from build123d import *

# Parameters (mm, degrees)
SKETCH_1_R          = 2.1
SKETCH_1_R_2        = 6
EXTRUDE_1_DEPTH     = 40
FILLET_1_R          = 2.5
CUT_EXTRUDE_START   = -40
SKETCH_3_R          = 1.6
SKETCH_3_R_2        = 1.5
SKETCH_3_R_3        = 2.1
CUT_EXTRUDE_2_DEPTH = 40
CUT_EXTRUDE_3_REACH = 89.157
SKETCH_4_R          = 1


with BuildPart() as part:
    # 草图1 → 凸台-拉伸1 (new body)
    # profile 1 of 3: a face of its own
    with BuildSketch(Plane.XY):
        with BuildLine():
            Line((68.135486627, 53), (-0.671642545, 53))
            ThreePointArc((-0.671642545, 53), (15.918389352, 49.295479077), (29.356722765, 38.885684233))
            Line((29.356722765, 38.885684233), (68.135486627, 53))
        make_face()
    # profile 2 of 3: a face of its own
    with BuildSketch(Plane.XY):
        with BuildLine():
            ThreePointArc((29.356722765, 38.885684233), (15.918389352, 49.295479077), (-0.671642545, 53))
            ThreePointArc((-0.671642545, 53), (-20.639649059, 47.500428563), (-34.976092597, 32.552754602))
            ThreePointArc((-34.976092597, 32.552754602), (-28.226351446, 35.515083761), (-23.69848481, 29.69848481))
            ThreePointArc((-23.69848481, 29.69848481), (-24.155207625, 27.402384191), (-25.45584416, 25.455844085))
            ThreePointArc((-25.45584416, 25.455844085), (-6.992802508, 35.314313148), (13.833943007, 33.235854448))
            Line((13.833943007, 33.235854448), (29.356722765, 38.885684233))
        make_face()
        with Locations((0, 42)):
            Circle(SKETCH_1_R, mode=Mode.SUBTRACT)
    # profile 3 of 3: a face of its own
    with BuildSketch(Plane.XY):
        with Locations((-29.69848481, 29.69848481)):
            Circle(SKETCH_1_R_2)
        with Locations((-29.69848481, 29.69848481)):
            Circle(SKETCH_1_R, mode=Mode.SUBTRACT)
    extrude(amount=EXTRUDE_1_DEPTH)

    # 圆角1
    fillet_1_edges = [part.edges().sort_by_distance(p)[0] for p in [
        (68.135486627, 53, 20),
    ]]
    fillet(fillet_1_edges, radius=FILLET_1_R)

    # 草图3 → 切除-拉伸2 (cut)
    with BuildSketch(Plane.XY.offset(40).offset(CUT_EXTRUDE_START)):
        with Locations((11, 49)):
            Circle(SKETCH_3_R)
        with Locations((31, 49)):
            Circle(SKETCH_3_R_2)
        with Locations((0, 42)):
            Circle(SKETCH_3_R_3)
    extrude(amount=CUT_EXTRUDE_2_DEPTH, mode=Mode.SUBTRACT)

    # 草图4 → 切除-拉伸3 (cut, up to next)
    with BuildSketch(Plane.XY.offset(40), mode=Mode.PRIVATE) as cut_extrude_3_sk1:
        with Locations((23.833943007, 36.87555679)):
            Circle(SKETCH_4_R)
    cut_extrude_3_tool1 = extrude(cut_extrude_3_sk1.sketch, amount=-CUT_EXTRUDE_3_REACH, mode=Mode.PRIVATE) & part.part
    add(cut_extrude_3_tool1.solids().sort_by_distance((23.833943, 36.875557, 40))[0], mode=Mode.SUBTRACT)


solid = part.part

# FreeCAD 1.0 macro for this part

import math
import FreeCAD as App
import Part
import Sketcher

V = App.Vector
Q = App.Units.Quantity


def edges_at(feature, points):
    """Names of the edges that pass closest to the given points."""
    edges = feature.Shape.Edges
    near = lambda p: min(range(len(edges)), key=lambda i: edges[i].distToShape(Part.Vertex(*p))[0])
    return sorted({f"Edge{near(p) + 1}" for p in points})

doc = App.newDocument("Part")
body = doc.addObject("PartDesign::Body", "Body")

# Sketch on XY plane
sketch1 = body.newObject("Sketcher::SketchObject", "Sketch")
sketch1.AttachmentSupport = (doc.getObject("XY_Plane"), [""])
sketch1.MapMode = "FlatFace"
sketch1.addGeometry([
    Part.LineSegment(V(68.135487, 53, 0), V(-0.671643, 53, 0)),  # 0
    Part.ArcOfCircle(Part.Circle(V(-0.671642, 14, 0), V(0, 0, 1), 39), math.radians(90), math.radians(151.594304)),  # 1
    Part.ArcOfCircle(Part.Circle(V(-29.698485, 29.698485, 0), V(0, 0, 1), 6), math.radians(151.594306), math.radians(314.999999)),  # 2
    Part.ArcOfCircle(Part.Circle(V(0, 0, 0), V(0, 0, 1), 36), math.radians(67.401187), math.radians(135)),  # 3
    Part.LineSegment(V(13.833943, 33.235854, 0), V(29.356723, 38.885684, 0)),  # 4
    Part.LineSegment(V(29.356723, 38.885684, 0), V(68.135487, 53, 0)),  # 5
    Part.Circle(V(0, 42, 0), V(0, 0, 1), 2.1),  # 6
    Part.Circle(V(-29.698485, 29.698485, 0), V(0, 0, 1), 2.1),  # 7
], False)
sketch1.addConstraint([
    Sketcher.Constraint("Tangent", 0, 2, 1, 1),
    Sketcher.Constraint("Tangent", 1, 2, 2, 1),
    Sketcher.Constraint("Tangent", 2, 2, 3, 2),
    Sketcher.Constraint("Coincident", 3, 1, 4, 1),
    Sketcher.Constraint("Coincident", 4, 2, 5, 1),
    Sketcher.Constraint("Coincident", 5, 2, 0, 1),
    Sketcher.Constraint("Horizontal", 0),
    Sketcher.Constraint("Coincident", 3, 3, -1, 1),
    Sketcher.Constraint("Coincident", 7, 3, 2, 3),
    Sketcher.Constraint("Equal", 6, 7),
    Sketcher.Constraint("PointOnObject", 6, 3, -2),
    Sketcher.Constraint("Parallel", 4, 5),
    Sketcher.Constraint("Radius", 1, Q("39 mm")),
    Sketcher.Constraint("Radius", 2, Q("6 mm")),
    Sketcher.Constraint("Radius", 3, Q("36 mm")),
    Sketcher.Constraint("Diameter", 6, Q("4.2 mm")),
    Sketcher.Constraint("Angle", 4, Q("20 deg")),
    Sketcher.Constraint("DistanceY", -1, 1, 1, 3, Q("14 mm")),
    Sketcher.Constraint("DistanceY", -1, 1, 6, 3, Q("42 mm")),
    Sketcher.Constraint("Distance", 5, Q("41.267499 mm")),
    Sketcher.Constraint("DistanceX", 0, 2, 0, 1, Q("68.807129 mm")),
    Sketcher.Constraint("DistanceX", 2, 2, 1, 3, Q("24.784202 mm")),
])
pad1 = body.newObject("PartDesign::Pad", "Pad")
pad1.Profile = sketch1
pad1.Length = 40
doc.recompute()

fillet = body.newObject("PartDesign::Fillet", "Fillet")
fillet.Base = (pad1, edges_at(pad1, [(68.135, 53, 20)]))
fillet.Radius = 2.5

# Sketch on XY plane
sketch2 = body.newObject("Sketcher::SketchObject", "Sketch001")
sketch2.AttachmentSupport = (doc.getObject("XY_Plane"), [""])
sketch2.MapMode = "FlatFace"
sketch2.addGeometry([
    Part.Circle(V(11, 49, 0), V(0, 0, 1), 1.6),
    Part.Circle(V(31, 49, 0), V(0, 0, 1), 1.5),
    Part.Circle(V(0, 42, 0), V(0, 0, 1), 2.1),
], False)
sketch2.addConstraint([
    Sketcher.Constraint("PointOnObject", 2, 3, -2),
    Sketcher.Constraint("Horizontal", 0, 3, 1, 3),
    Sketcher.Constraint("Diameter", 1, Q("3 mm")),
    Sketcher.Constraint("Diameter", 0, Q("3.2 mm")),
    Sketcher.Constraint("Diameter", 2, Q("4.2 mm")),
    Sketcher.Constraint("DistanceX", -1, 1, 0, 3, Q("11 mm")),
    Sketcher.Constraint("DistanceY", -1, 1, 0, 3, Q("49 mm")),
    Sketcher.Constraint("DistanceX", -1, 1, 1, 3, Q("31 mm")),
    Sketcher.Constraint("DistanceY", -1, 1, 2, 3, Q("42 mm")),
])
pocket1 = body.newObject("PartDesign::Pocket", "Pocket")
pocket1.Profile = sketch2
pocket1.Length = 40
pocket1.Reversed = True

# Sketch on XY plane
sketch3 = body.newObject("Sketcher::SketchObject", "Sketch002")
sketch3.AttachmentSupport = (doc.getObject("XY_Plane"), [""])
sketch3.MapMode = "FlatFace"
sketch3.AttachmentOffset = App.Placement(V(0, 0, 40), App.Rotation())
sketch3.addGeometry(Part.Circle(V(23.833943, 36.875557, 0), V(0, 0, 1), 1), False)
sketch3.addConstraint([
    Sketcher.Constraint("Diameter", 0, Q("2 mm")),
    Sketcher.Constraint("DistanceX", -1, 1, 0, 3, Q("23.833943 mm")),
    Sketcher.Constraint("DistanceY", -1, 1, 0, 3, Q("36.875557 mm")),
])
pocket2 = body.newObject("PartDesign::Pocket", "Pocket001")
pocket2.Profile = sketch3
pocket2.Type = "UpToFirst"

doc.recompute()
